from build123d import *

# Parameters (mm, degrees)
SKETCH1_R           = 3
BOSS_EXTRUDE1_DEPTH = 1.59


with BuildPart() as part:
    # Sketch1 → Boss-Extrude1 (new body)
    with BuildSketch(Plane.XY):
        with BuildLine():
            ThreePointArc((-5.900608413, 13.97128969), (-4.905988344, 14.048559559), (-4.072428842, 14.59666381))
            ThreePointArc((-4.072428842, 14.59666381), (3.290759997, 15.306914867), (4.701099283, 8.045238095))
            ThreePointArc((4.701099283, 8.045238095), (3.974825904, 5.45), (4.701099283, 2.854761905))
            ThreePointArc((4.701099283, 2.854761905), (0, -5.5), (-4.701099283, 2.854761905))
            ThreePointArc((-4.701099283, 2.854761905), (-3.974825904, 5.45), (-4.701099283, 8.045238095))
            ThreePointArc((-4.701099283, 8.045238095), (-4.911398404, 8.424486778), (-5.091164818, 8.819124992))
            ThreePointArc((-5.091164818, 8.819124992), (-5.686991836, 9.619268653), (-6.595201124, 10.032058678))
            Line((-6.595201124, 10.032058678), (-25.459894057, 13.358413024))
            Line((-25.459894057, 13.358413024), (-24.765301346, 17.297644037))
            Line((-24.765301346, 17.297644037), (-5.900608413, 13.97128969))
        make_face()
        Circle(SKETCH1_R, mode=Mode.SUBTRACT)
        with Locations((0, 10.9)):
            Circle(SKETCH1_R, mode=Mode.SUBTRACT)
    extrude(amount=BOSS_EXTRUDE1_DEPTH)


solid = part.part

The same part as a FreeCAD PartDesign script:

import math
import FreeCAD as App
import Part
import Sketcher
Q = App.Units.Quantity

doc = App.newDocument("Part")
body = doc.addObject("PartDesign::Body", "Body")

# Sketch on XY plane
sketch1 = doc.addObject("Sketcher::SketchObject", "Sketch")
body.addObject(sketch1)
sketch1.AttachmentSupport = (doc.XY_Plane, [""])
sketch1.MapMode = "FlatFace"
sketch1.addGeometry(Part.ArcOfCircle(Part.Circle(App.Vector(-5.553312, 15.940905, 0), App.Vector(0, 0, 1), 2), math.radians(-100), math.radians(-42.230953)), False)
sketch1.addGeometry(Part.LineSegment(App.Vector(-5.900608, 13.97129, 0), App.Vector(-24.765301, 17.297644, 0)), False)
sketch1.addGeometry(Part.LineSegment(App.Vector(-24.765301, 17.297644, 0), App.Vector(-25.459894, 13.358413, 0)), False)
sketch1.addGeometry(Part.LineSegment(App.Vector(-25.459894, 13.358413, 0), App.Vector(-6.595201, 10.032059, 0)), False)
sketch1.addGeometry(Part.ArcOfCircle(Part.Circle(App.Vector(-6.942497, 8.062443, 0), App.Vector(0, 0, 1), 2), math.radians(22.230953), math.radians(80)), False)
sketch1.addGeometry(Part.ArcOfCircle(Part.Circle(App.Vector(0, 10.9, 0), App.Vector(0, 0, 1), 5.5), math.radians(-157.769047), math.radians(-148.731611)), False)
sketch1.addGeometry(Part.ArcOfCircle(Part.Circle(App.Vector(-8.974826, 5.45, 0), App.Vector(0, 0, 1), 5), math.radians(-31.268389), math.radians(31.268389)), False)
sketch1.addGeometry(Part.ArcOfCircle(Part.Circle(App.Vector(0, 0, 0), App.Vector(0, 0, 1), 5.5), math.radians(148.731611), math.radians(391.268389)), False)
sketch1.addGeometry(Part.ArcOfCircle(Part.Circle(App.Vector(8.974826, 5.45, 0), App.Vector(0, 0, 1), 5), math.radians(148.731611), math.radians(211.268389)), False)
sketch1.addGeometry(Part.ArcOfCircle(Part.Circle(App.Vector(0, 10.9, 0), App.Vector(0, 0, 1), 5.5), math.radians(-31.268389), math.radians(137.769047)), False)
sketch1.addGeometry(Part.Circle(App.Vector(0, 0, 0), App.Vector(0, 0, 1), 3), False)
sketch1.addGeometry(Part.Circle(App.Vector(0, 10.9, 0), App.Vector(0, 0, 1), 3), False)
sketch1.addConstraint(Sketcher.Constraint("Tangent", 0, 1, 1, 1))
sketch1.addConstraint(Sketcher.Constraint("Coincident", 1, 2, 2, 1))
sketch1.addConstraint(Sketcher.Constraint("Coincident", 2, 2, 3, 1))
sketch1.addConstraint(Sketcher.Constraint("Tangent", 3, 2, 4, 2))
sketch1.addConstraint(Sketcher.Constraint("Tangent", 4, 1, 5, 1))
sketch1.addConstraint(Sketcher.Constraint("Tangent", 5, 2, 6, 2))
sketch1.addConstraint(Sketcher.Constraint("Tangent", 6, 1, 7, 1))
sketch1.addConstraint(Sketcher.Constraint("Tangent", 7, 2, 8, 2))
sketch1.addConstraint(Sketcher.Constraint("Tangent", 8, 1, 9, 1))
sketch1.addConstraint(Sketcher.Constraint("Tangent", 9, 2, 0, 2))
sketch1.addConstraint(Sketcher.Constraint("Coincident", 7, 3, -1, 1))
sketch1.addConstraint(Sketcher.Constraint("Coincident", 10, 3, -1, 1))
sketch1.addConstraint(Sketcher.Constraint("Coincident", 9, 3, 5, 3))
sketch1.addConstraint(Sketcher.Constraint("Coincident", 11, 3, 5, 3))
sketch1.addConstraint(Sketcher.Constraint("Equal", 0, 4))
sketch1.addConstraint(Sketcher.Constraint("Equal", 5, 7))
sketch1.addConstraint(Sketcher.Constraint("Equal", 6, 8))
sketch1.addConstraint(Sketcher.Constraint("Equal", 7, 9))
sketch1.addConstraint(Sketcher.Constraint("Equal", 10, 11))
sketch1.addConstraint(Sketcher.Constraint("PointOnObject", 5, 3, -2))
sketch1.addConstraint(Sketcher.Constraint("Perpendicular", 1, 2))
sketch1.addConstraint(Sketcher.Constraint("Perpendicular", 2, 3))
sketch1.addConstraint(Sketcher.Constraint("Equal", 1, 3))
sketch1.addConstraint(Sketcher.Constraint("Diameter", 10, Q("6 mm")))
sketch1.addConstraint(Sketcher.Constraint("Radius", 0, Q("2 mm")))
sketch1.addConstraint(Sketcher.Constraint("Radius", 6, Q("5 mm")))
sketch1.addConstraint(Sketcher.Constraint("Radius", 5, Q("5.5 mm")))
sketch1.addConstraint(Sketcher.Constraint("Angle", 1, Q("170 deg")))
sketch1.addConstraint(Sketcher.Constraint("Distance", 2, Q("4 mm")))
sketch1.addConstraint(Sketcher.Constraint("DistanceY", -1, 1, 5, 3, Q("10.9 mm")))
sketch1.addConstraint(Sketcher.Constraint("DistanceX", 1, 2, -1, 1, Q("24.765301 mm")))
pad1 = doc.addObject("PartDesign::Pad", "Pad")
body.addObject(pad1)
pad1.Profile = sketch1
pad1.Length = 1.59

doc.recompute()
